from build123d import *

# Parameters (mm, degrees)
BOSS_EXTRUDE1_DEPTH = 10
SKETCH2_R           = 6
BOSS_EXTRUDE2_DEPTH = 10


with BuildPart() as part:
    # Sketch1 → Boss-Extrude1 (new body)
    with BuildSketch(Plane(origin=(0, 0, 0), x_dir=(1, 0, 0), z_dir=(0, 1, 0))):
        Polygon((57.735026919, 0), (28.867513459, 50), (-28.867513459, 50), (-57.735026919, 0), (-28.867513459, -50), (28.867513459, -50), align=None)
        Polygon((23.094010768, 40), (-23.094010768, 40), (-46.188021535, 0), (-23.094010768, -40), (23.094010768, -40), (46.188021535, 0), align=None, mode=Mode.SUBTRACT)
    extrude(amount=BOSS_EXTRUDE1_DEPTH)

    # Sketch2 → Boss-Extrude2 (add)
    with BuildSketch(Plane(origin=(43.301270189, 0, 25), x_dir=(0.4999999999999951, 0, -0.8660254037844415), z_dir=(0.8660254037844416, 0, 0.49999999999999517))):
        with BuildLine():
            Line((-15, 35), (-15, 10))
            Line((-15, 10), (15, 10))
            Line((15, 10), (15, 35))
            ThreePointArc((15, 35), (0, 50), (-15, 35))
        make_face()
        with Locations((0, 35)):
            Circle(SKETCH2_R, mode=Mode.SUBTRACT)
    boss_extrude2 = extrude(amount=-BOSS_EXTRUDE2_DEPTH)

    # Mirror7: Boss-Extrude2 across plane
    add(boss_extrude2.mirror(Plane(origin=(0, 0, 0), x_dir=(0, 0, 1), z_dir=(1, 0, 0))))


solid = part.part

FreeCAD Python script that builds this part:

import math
import FreeCAD as App
import Part
import Sketcher

V = App.Vector
Q = App.Units.Quantity

doc = App.newDocument("Part")
body = doc.addObject("PartDesign::Body", "Body")

sketch1 = body.newObject("Sketcher::SketchObject", "Sketch")
sketch1.AttachmentSupport = (doc.getObject("XZ_Plane"), [""])
sketch1.MapMode = "FlatFace"
sketch1.addGeometry([
    Part.LineSegment(V(58, 0, 0), V(29, -50, 0)),
    Part.LineSegment(V(29, -50, 0), V(-29, -50, 0)),
    Part.LineSegment(V(-29, -50, 0), V(-58, 0, 0)),
    Part.LineSegment(V(-58, 0, 0), V(-29, 50, 0)),
    Part.LineSegment(V(-29, 50, 0), V(29, 50, 0)),
    Part.LineSegment(V(29, 50, 0), V(58, 0, 0)),
    Part.LineSegment(V(-23, -40, 0), V(23, -40, 0)),
    Part.LineSegment(V(23, -40, 0), V(46, 0, 0)),
    Part.LineSegment(V(46, 0, 0), V(23, 40, 0)),
    Part.LineSegment(V(23, 40, 0), V(-23, 40, 0)),
    Part.LineSegment(V(-23, 40, 0), V(-46, 0, 0)),
    Part.LineSegment(V(-46, 0, 0), V(-23, -40, 0)),
], False)
sketch1.addConstraint([
    Sketcher.Constraint("Coincident", 0, 2, 1, 1),
    Sketcher.Constraint("Coincident", 1, 2, 2, 1),
    Sketcher.Constraint("Coincident", 2, 2, 3, 1),
    Sketcher.Constraint("Coincident", 3, 2, 4, 1),
    Sketcher.Constraint("Coincident", 4, 2, 5, 1),
    Sketcher.Constraint("Coincident", 5, 2, 0, 1),
    Sketcher.Constraint("Coincident", 6, 2, 7, 1),
    Sketcher.Constraint("Coincident", 7, 2, 8, 1),
    Sketcher.Constraint("Coincident", 8, 2, 9, 1),
    Sketcher.Constraint("Coincident", 9, 2, 10, 1),
    Sketcher.Constraint("Coincident", 10, 2, 11, 1),
    Sketcher.Constraint("Coincident", 11, 2, 6, 1),
    Sketcher.Constraint("Horizontal", 1),
    Sketcher.Constraint("Horizontal", 4),
    Sketcher.Constraint("Horizontal", 6),
    Sketcher.Constraint("Horizontal", 9),
    Sketcher.Constraint("Symmetric", 0, 2, 3, 2, -1, 1),
    Sketcher.Constraint("Symmetric", 2, 2, 5, 2, -1, 1),
    Sketcher.Constraint("Symmetric", 6, 2, 9, 2, -1, 1),
    Sketcher.Constraint("Symmetric", 7, 2, 10, 2, -1, 1),
    Sketcher.Constraint("PointOnObject", 2, 2, -1),
    Sketcher.Constraint("PointOnObject", 7, 2, -1),
    Sketcher.Constraint("Parallel", 2, 5),
    Sketcher.Constraint("Parallel", 3, 7),
    Sketcher.Constraint("Parallel", 5, 8),
    Sketcher.Constraint("Parallel", 8, 11),
    Sketcher.Constraint("Vertical", 1, 2, 3, 2),
    Sketcher.Constraint("Angle", 0, Q("-120 deg")),
    Sketcher.Constraint("DistanceY", 0, 2, -1, 1, Q("50 mm")),
    Sketcher.Constraint("DistanceY", 6, 2, -1, 1, Q("40 mm")),
    Sketcher.Constraint("DistanceX", 6, 1, 6, 2, Q("46.188022 mm")),
    Sketcher.Constraint("DistanceX", 1, 2, 1, 1, Q("57.735027 mm")),
])
pad1 = body.newObject("PartDesign::Pad", "Pad")
pad1.Profile = sketch1
pad1.Length = 10
pad1.Reversed = True

sketch2 = body.newObject("Sketcher::SketchObject", "Sketch001")
sketch2.Placement = App.Placement(V(43.30127, 0, 25), App.Rotation(V(0.5, 0, -0.866025404), V(0, 1, 0), V(0.866025404, 0, 0.5), "ZXY"))
sketch2.addGeometry([
    Part.LineSegment(V(-15, 35, 0), V(-15, 10, 0)),
    Part.LineSegment(V(-15, 10, 0), V(15, 10, 0)),
    Part.LineSegment(V(15, 10, 0), V(15, 35, 0)),
    Part.ArcOfCircle(Part.Circle(V(0, 35, 0), V(0, 0, 1), 15), math.radians(0), math.radians(180)),
    Part.Circle(V(0, 35, 0), V(0, 0, 1), 6),
], False)
sketch2.addConstraint([
    Sketcher.Constraint("Coincident", 0, 2, 1, 1),
    Sketcher.Constraint("Coincident", 1, 2, 2, 1),
    Sketcher.Constraint("Tangent", 2, 2, 3, 1),
    Sketcher.Constraint("Tangent", 3, 2, 0, 1),
    Sketcher.Constraint("Vertical", 0),
    Sketcher.Constraint("Horizontal", 1),
    Sketcher.Constraint("Vertical", 2),
    Sketcher.Constraint("Coincident", 4, 3, 3, 3),
    Sketcher.Constraint("PointOnObject", 3, 3, -2),
    Sketcher.Constraint("Diameter", 4, Q("12 mm")),
    Sketcher.Constraint("Radius", 3, Q("15 mm")),
    Sketcher.Constraint("DistanceY", 0, 2, 0, 1, Q("25 mm")),
    Sketcher.Constraint("DistanceY", -1, 1, 3, 3, Q("35 mm")),
])
pad2 = body.newObject("PartDesign::Pad", "Pad001")
pad2.Profile = sketch2
pad2.Length = 10
pad2.Reversed = True
doc.recompute()

mirrored = body.newObject("PartDesign::Mirrored", "Mirrored")
mirrored.Originals = [pad2]
mirrored.MirrorPlane = (doc.getObject("YZ_Plane"), [""])
body.Tip = mirrored

doc.recompute()
